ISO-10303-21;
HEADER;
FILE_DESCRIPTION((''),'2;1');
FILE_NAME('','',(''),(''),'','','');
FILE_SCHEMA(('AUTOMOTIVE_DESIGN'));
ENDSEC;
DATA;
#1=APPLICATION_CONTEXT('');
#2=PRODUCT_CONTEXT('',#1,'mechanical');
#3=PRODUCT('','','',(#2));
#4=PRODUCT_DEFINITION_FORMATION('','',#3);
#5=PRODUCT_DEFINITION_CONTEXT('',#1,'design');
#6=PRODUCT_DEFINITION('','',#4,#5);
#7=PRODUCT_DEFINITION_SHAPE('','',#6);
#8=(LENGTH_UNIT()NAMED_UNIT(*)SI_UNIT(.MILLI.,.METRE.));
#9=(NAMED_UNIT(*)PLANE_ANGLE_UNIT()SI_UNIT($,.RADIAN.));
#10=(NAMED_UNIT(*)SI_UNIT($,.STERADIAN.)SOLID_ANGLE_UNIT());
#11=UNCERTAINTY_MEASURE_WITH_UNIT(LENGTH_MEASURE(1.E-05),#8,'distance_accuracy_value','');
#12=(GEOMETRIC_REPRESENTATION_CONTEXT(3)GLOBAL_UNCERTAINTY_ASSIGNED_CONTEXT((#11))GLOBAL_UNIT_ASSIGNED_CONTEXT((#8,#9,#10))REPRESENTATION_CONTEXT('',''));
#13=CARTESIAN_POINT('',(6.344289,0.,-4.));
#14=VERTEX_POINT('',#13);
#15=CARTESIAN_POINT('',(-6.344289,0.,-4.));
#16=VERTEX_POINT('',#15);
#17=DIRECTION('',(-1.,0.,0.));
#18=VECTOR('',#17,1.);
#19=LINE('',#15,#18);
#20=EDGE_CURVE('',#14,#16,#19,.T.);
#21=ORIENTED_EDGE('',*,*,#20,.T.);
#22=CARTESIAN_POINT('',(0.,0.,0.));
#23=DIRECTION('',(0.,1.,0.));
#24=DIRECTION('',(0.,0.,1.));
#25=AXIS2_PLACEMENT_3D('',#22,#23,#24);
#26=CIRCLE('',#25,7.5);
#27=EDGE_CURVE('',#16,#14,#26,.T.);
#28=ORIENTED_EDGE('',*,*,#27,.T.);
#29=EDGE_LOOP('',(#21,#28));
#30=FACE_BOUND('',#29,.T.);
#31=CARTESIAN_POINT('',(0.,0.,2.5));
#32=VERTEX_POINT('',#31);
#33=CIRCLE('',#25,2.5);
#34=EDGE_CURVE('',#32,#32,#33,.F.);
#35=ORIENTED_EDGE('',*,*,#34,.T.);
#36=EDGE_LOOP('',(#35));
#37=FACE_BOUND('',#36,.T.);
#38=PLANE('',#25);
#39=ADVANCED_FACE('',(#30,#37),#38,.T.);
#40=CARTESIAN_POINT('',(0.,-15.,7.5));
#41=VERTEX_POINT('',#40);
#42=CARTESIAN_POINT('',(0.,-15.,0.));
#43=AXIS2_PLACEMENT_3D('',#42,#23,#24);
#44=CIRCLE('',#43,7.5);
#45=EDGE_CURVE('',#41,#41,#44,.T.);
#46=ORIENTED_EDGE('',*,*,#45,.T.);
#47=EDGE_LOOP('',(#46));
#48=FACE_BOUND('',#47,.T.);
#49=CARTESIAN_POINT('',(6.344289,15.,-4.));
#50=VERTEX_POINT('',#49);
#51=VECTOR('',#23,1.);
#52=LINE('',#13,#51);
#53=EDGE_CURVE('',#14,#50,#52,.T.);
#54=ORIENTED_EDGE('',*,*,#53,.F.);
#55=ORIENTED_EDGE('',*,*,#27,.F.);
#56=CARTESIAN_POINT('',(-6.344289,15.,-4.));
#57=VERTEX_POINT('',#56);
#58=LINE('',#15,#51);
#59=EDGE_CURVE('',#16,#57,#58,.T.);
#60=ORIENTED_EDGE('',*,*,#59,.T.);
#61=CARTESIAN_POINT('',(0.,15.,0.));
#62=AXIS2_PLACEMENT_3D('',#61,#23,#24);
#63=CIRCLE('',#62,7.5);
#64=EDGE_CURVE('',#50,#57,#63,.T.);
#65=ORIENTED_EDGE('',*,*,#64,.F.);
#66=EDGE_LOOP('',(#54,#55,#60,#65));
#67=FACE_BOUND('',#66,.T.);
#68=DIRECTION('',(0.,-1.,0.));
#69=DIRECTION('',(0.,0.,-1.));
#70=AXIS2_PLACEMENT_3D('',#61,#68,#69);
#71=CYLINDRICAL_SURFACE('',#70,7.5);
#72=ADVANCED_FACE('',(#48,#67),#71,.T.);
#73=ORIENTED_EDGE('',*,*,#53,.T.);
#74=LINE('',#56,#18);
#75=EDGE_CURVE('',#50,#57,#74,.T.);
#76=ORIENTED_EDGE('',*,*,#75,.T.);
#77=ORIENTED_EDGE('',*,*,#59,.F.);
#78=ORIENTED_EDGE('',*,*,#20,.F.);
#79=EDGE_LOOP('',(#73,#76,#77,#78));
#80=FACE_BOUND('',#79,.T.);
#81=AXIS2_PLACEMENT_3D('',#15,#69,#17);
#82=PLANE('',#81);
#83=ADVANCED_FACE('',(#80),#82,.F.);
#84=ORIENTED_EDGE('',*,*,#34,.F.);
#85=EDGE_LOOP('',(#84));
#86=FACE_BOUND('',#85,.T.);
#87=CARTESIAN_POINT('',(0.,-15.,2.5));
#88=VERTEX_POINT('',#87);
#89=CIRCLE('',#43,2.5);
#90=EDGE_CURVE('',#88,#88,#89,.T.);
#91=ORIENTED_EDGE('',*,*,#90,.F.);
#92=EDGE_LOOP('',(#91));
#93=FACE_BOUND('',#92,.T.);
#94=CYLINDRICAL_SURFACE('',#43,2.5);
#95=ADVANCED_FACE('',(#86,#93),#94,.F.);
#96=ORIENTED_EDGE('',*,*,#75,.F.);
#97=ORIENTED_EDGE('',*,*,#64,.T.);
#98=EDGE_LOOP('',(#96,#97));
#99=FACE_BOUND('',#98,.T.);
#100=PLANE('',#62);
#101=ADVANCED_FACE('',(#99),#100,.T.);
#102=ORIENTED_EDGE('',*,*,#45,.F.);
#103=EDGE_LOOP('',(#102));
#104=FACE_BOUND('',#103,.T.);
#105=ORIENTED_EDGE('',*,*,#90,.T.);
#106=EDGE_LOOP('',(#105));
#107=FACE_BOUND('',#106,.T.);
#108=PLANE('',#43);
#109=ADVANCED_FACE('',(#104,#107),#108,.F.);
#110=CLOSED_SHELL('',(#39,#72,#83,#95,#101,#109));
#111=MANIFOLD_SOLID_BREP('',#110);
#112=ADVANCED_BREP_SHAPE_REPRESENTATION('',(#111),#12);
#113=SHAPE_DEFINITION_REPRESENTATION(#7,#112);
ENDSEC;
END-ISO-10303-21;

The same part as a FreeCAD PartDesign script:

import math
import FreeCAD as App
import Part
import Sketcher
from FreeCAD import Vector
Q = App.Units.Quantity

doc = App.newDocument("Part")
body = doc.addObject("PartDesign::Body", "Body")

sketch1 = body.newObject("Sketcher::SketchObject", "Sketch")
sketch1.AttachmentSupport = (doc.getObject("XZ_Plane"), [""])
sketch1.MapMode = "FlatFace"
sketch1.addGeometry(Part.Circle(Vector(0, 0, 0), Vector(0, 0, 1), 7.5), False)
sketch1.addConstraint([
    Sketcher.Constraint("Coincident", 0, 3, -1, 1),
    Sketcher.Constraint("Diameter", 0, Q("15 mm")),
])
pad1 = body.newObject("PartDesign::Pad", "Pad")
pad1.Profile = sketch1
pad1.Length = 30
pad1.Midplane = True

sketch2 = body.newObject("Sketcher::SketchObject", "Sketch001")
sketch2.AttachmentSupport = (doc.getObject("XZ_Plane"), [""])
sketch2.MapMode = "FlatFace"
sketch2.AttachmentOffset = App.Placement(Vector(0, 0, -15), App.Rotation())
sketch2.addGeometry(Part.Circle(Vector(0, 0, 0), Vector(0, 0, 1), 2.5), False)
sketch2.addConstraint([
    Sketcher.Constraint("Coincident", 0, 3, -1, 1),
    Sketcher.Constraint("Diameter", 0, Q("5 mm")),
])
pocket1 = body.newObject("PartDesign::Pocket", "Pocket")
pocket1.Profile = sketch2
pocket1.Type = "ThroughAll"
pocket1.Reversed = True

sketch3 = body.newObject("Sketcher::SketchObject", "Sketch002")
sketch3.AttachmentSupport = (doc.getObject("XZ_Plane"), [""])
sketch3.MapMode = "FlatFace"
sketch3.AttachmentOffset = App.Placement(Vector(0, 0, -15), App.Rotation())
sketch3.addGeometry([
    Part.LineSegment(Vector(6.344289, -4, 0), Vector(-6.344289, -4, 0)),
    Part.ArcOfCircle(Part.Circle(Vector(0, 0, 0), Vector(0, 0, 1), 7.5), math.radians(-32.230953), math.radians(212.230953)),
], False)
sketch3.addConstraint([
    Sketcher.Constraint("Coincident", 0, 1, 1, 1),
    Sketcher.Constraint("Coincident", 1, 2, 0, 2),
    Sketcher.Constraint("Horizontal", 0),
    Sketcher.Constraint("Coincident", 1, 3, -1, 1),
    Sketcher.Constraint("Radius", 1, Q("7.5 mm")),
    Sketcher.Constraint("DistanceY", 0, 1, -1, 1, Q("4 mm")),
])
pocket2 = body.newObject("PartDesign::Pocket", "Pocket001")
pocket2.Profile = sketch3
pocket2.Length = 15
pocket2.Reversed = True

doc.recompute()
